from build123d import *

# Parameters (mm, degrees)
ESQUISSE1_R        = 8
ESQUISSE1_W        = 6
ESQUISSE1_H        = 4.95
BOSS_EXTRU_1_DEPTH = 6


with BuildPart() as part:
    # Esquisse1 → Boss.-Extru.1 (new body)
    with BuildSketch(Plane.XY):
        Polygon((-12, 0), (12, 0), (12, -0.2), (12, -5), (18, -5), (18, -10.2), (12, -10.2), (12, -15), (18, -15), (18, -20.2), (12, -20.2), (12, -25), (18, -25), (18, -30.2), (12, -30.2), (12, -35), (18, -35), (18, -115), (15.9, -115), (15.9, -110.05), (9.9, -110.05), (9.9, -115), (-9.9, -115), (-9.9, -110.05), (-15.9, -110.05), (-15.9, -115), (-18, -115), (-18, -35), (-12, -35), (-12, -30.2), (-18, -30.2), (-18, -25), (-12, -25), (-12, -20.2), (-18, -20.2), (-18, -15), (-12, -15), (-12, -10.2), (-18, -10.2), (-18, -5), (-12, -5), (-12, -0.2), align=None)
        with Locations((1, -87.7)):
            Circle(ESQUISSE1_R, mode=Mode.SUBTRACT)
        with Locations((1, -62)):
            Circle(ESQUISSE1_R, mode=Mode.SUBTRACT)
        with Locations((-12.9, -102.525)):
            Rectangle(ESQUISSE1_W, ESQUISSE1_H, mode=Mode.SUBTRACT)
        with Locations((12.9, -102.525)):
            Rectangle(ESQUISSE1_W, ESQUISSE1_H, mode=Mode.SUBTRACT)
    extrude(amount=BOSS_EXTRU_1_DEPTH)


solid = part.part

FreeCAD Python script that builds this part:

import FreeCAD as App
import Part
import Sketcher
Q = App.Units.Quantity


def add_polygon(sketch, points):
    """Adds a closed chain of lines whose ends are joined by coincident constraints."""
    first, n = sketch.GeometryCount, len(points)
    for a, b in zip(points, points[1:] + points[:1]):
        sketch.addGeometry(Part.LineSegment(App.Vector(*a, 0), App.Vector(*b, 0)), False)
    for i in range(n):
        sketch.addConstraint(Sketcher.Constraint("Coincident", first + i, 2, first + (i + 1) % n, 1))

doc = App.newDocument("Part")
body = doc.addObject("PartDesign::Body", "Body")

# Sketch on XY plane
sketch1 = body.newObject("Sketcher::SketchObject", "Sketch")
sketch1.AttachmentSupport = (doc.getObject("XY_Plane"), [""])
sketch1.MapMode = "FlatFace"
add_polygon(sketch1, [(12, 0), (-12, 0), (-12, -5), (-18, -5), (-18, -10.2), (-12, -10.2), (-12, -15), (-18, -15), (-18, -20.2), (-12, -20.2), (-12, -25), (-18, -25), (-18, -30.2), (-12, -30.2), (-12, -35), (-18, -35), (-18, -115), (-15.9, -115), (-15.9, -110), (-9.9, -110), (-9.9, -115), (9.9, -115), (9.9, -110), (15.9, -110), (15.9, -115), (18, -115), (18, -35), (12, -35), (12, -30.2), (18, -30.2), (18, -25), (12, -25), (12, -20.2), (18, -20.2), (18, -15), (12, -15), (12, -10.2), (18, -10.2), (18, -5), (12, -5)])  # lines 0-39
add_polygon(sketch1, [(9.9, -105), (9.9, -100), (15.9, -100), (15.9, -105)])  # lines 40-43
sketch1.addGeometry(Part.Circle(App.Vector(1, -87.7, 0), App.Vector(0, 0, 1), 8), False)  # 44
add_polygon(sketch1, [(-15.9, -105), (-15.9, -100), (-9.9, -100), (-9.9, -105)])  # lines 45-48
sketch1.addGeometry(Part.Circle(App.Vector(1, -62, 0), App.Vector(0, 0, 1), 8), False)  # 49
sketch1.addConstraint(Sketcher.Constraint("Horizontal", 0))
sketch1.addConstraint(Sketcher.Constraint("Vertical", 1))
sketch1.addConstraint(Sketcher.Constraint("Horizontal", 2))
sketch1.addConstraint(Sketcher.Constraint("Vertical", 3))
sketch1.addConstraint(Sketcher.Constraint("Horizontal", 4))
sketch1.addConstraint(Sketcher.Constraint("Vertical", 5))
sketch1.addConstraint(Sketcher.Constraint("Horizontal", 6))
sketch1.addConstraint(Sketcher.Constraint("Vertical", 7))
sketch1.addConstraint(Sketcher.Constraint("Horizontal", 8))
sketch1.addConstraint(Sketcher.Constraint("Vertical", 9))
sketch1.addConstraint(Sketcher.Constraint("Horizontal", 10))
sketch1.addConstraint(Sketcher.Constraint("Vertical", 11))
sketch1.addConstraint(Sketcher.Constraint("Horizontal", 12))
sketch1.addConstraint(Sketcher.Constraint("Vertical", 13))
sketch1.addConstraint(Sketcher.Constraint("Horizontal", 14))
sketch1.addConstraint(Sketcher.Constraint("Vertical", 15))
sketch1.addConstraint(Sketcher.Constraint("Horizontal", 16))
sketch1.addConstraint(Sketcher.Constraint("Vertical", 17))
sketch1.addConstraint(Sketcher.Constraint("Horizontal", 18))
sketch1.addConstraint(Sketcher.Constraint("Vertical", 19))
sketch1.addConstraint(Sketcher.Constraint("Horizontal", 20))
sketch1.addConstraint(Sketcher.Constraint("Vertical", 21))
sketch1.addConstraint(Sketcher.Constraint("Horizontal", 22))
sketch1.addConstraint(Sketcher.Constraint("Vertical", 23))
sketch1.addConstraint(Sketcher.Constraint("Horizontal", 24))
sketch1.addConstraint(Sketcher.Constraint("Vertical", 25))
sketch1.addConstraint(Sketcher.Constraint("Horizontal", 26))
sketch1.addConstraint(Sketcher.Constraint("Vertical", 27))
sketch1.addConstraint(Sketcher.Constraint("Horizontal", 28))
sketch1.addConstraint(Sketcher.Constraint("Vertical", 29))
sketch1.addConstraint(Sketcher.Constraint("Horizontal", 30))
sketch1.addConstraint(Sketcher.Constraint("Vertical", 31))
sketch1.addConstraint(Sketcher.Constraint("Horizontal", 32))
sketch1.addConstraint(Sketcher.Constraint("Vertical", 33))
sketch1.addConstraint(Sketcher.Constraint("Horizontal", 34))
sketch1.addConstraint(Sketcher.Constraint("Vertical", 35))
sketch1.addConstraint(Sketcher.Constraint("Horizontal", 36))
sketch1.addConstraint(Sketcher.Constraint("Vertical", 37))
sketch1.addConstraint(Sketcher.Constraint("Horizontal", 38))
sketch1.addConstraint(Sketcher.Constraint("Vertical", 39))
sketch1.addConstraint(Sketcher.Constraint("Vertical", 40))
sketch1.addConstraint(Sketcher.Constraint("Horizontal", 41))
sketch1.addConstraint(Sketcher.Constraint("Vertical", 42))
sketch1.addConstraint(Sketcher.Constraint("Horizontal", 43))
sketch1.addConstraint(Sketcher.Constraint("Vertical", 45))
sketch1.addConstraint(Sketcher.Constraint("Horizontal", 46))
sketch1.addConstraint(Sketcher.Constraint("Vertical", 47))
sketch1.addConstraint(Sketcher.Constraint("Horizontal", 48))
sketch1.addConstraint(Sketcher.Constraint("Equal", 44, 49))
sketch1.addConstraint(Sketcher.Constraint("Symmetric", 0, 2, 39, 2, -1, 1))
sketch1.addConstraint(Sketcher.Constraint("Symmetric", 18, 2, 21, 2, -2))
sketch1.addConstraint(Sketcher.Constraint("Symmetric", 16, 2, 23, 2, -2))
sketch1.addConstraint(Sketcher.Constraint("Symmetric", 14, 2, 25, 2, -2))
sketch1.addConstraint(Sketcher.Constraint("Symmetric", 12, 2, 27, 2, -2))
sketch1.addConstraint(Sketcher.Constraint("Symmetric", 10, 2, 29, 2, -2))
sketch1.addConstraint(Sketcher.Constraint("Symmetric", 8, 2, 31, 2, -2))
sketch1.addConstraint(Sketcher.Constraint("Symmetric", 6, 2, 33, 2, -2))
sketch1.addConstraint(Sketcher.Constraint("Symmetric", 4, 2, 35, 2, -2))
sketch1.addConstraint(Sketcher.Constraint("Symmetric", 2, 2, 37, 2, -2))
sketch1.addConstraint(Sketcher.Constraint("Symmetric", 41, 2, 45, 2, -2))
sketch1.addConstraint(Sketcher.Constraint("Symmetric", 43, 2, 47, 2, -2))
sketch1.addConstraint(Sketcher.Constraint("Horizontal", 16, 2, 19, 2))
sketch1.addConstraint(Sketcher.Constraint("Vertical", 44, 3, 49, 3))
sketch1.addConstraint(Sketcher.Constraint("Vertical", 1, 2, 4, 2))
sketch1.addConstraint(Sketcher.Constraint("Vertical", 3, 2, 6, 2))
sketch1.addConstraint(Sketcher.Constraint("Vertical", 5, 2, 8, 2))
sketch1.addConstraint(Sketcher.Constraint("Vertical", 7, 2, 10, 2))
sketch1.addConstraint(Sketcher.Constraint("Vertical", 9, 2, 12, 2))
sketch1.addConstraint(Sketcher.Constraint("Vertical", 11, 2, 14, 2))
sketch1.addConstraint(Sketcher.Constraint("Vertical", 21, 2, 40, 2))
sketch1.addConstraint(Sketcher.Constraint("Vertical", 23, 2, 41, 2))
sketch1.addConstraint(Sketcher.Constraint("Equal", 14, 18))
sketch1.addConstraint(Sketcher.Constraint("Equal", 3, 7))
sketch1.addConstraint(Sketcher.Constraint("Equal", 5, 9))
sketch1.addConstraint(Sketcher.Constraint("Equal", 7, 11))
sketch1.addConstraint(Sketcher.Constraint("Equal", 9, 13))
sketch1.addConstraint(Sketcher.Constraint("Equal", 23, 40))
sketch1.addConstraint(Sketcher.Constraint("Diameter", 44, Q("16 mm")))
sketch1.addConstraint(Sketcher.Constraint("DistanceX", 0, 2, 0, 1, Q("24 mm")))
sketch1.addConstraint(Sketcher.Constraint("DistanceX", 2, 2, 2, 1, Q("6 mm")))
sketch1.addConstraint(Sketcher.Constraint("DistanceY", 1, 2, 1, 1, Q("5 mm")))
sketch1.addConstraint(Sketcher.Constraint("DistanceY", 15, 2, 15, 1, Q("80 mm")))
sketch1.addConstraint(Sketcher.Constraint("DistanceX", 16, 1, 16, 2, Q("2.1 mm")))
sketch1.addConstraint(Sketcher.Constraint("DistanceY", 3, 2, 3, 1, Q("5.2 mm")))
sketch1.addConstraint(Sketcher.Constraint("DistanceY", 5, 2, 5, 1, Q("4.8 mm")))
sketch1.addConstraint(Sketcher.Constraint("DistanceX", -1, 1, 44, 3, Q("1 mm")))
sketch1.addConstraint(Sketcher.Constraint("DistanceY", 49, 3, -1, 1, Q("62 mm")))
sketch1.addConstraint(Sketcher.Constraint("DistanceY", 42, 2, -1, 1, Q("105 mm")))
sketch1.addConstraint(Sketcher.Constraint("DistanceY", 17, 1, 17, 2, Q("4.95 mm")))
sketch1.addConstraint(Sketcher.Constraint("DistanceY", 44, 3, -1, 1, Q("87.7 mm")))
pad1 = body.newObject("PartDesign::Pad", "Pad")
pad1.Profile = sketch1
pad1.Length = 6

doc.recompute()
